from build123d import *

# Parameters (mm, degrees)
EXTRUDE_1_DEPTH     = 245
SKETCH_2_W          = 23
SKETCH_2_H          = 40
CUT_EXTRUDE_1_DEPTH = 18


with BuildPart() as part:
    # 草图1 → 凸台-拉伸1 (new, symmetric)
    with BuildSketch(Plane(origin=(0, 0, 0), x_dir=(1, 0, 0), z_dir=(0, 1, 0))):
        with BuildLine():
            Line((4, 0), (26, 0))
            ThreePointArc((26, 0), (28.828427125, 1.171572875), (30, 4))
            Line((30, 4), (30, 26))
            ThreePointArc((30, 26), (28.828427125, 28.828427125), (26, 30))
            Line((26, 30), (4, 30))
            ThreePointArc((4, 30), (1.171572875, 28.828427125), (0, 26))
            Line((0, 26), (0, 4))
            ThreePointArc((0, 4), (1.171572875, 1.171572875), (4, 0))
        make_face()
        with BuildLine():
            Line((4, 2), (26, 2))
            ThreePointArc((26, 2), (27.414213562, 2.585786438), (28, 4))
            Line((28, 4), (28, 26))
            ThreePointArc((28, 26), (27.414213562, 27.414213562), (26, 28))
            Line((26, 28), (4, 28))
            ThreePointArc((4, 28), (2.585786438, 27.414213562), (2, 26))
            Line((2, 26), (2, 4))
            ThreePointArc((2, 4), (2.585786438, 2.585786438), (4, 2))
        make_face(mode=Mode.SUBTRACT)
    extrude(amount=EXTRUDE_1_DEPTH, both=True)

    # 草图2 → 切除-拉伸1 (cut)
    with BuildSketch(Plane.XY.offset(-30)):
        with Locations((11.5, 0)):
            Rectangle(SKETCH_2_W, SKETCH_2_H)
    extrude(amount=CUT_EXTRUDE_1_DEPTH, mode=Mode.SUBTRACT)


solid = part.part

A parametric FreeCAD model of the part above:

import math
import FreeCAD as App
import Part
import Sketcher
from FreeCAD import Vector


def add_polygon(sketch, points):
    """Adds a closed chain of lines whose ends are joined by coincident constraints."""
    first, n = sketch.GeometryCount, len(points)
    for a, b in zip(points, points[1:] + points[:1]):
        sketch.addGeometry(Part.LineSegment(App.Vector(*a, 0), App.Vector(*b, 0)), False)
    for i in range(n):
        sketch.addConstraint(Sketcher.Constraint("Coincident", first + i, 2, first + (i + 1) % n, 1))

doc = App.newDocument("Part")
body = doc.addObject("PartDesign::Body", "Body")

# Sketch on XZ plane
sketch1 = body.newObject("Sketcher::SketchObject", "Sketch")
sketch1.AttachmentSupport = (doc.getObject("XZ_Plane"), [""])
sketch1.MapMode = "FlatFace"
sketch1.addGeometry([
    Part.LineSegment(Vector(4, 0, 0), Vector(26, 0, 0)),  # 0
    Part.ArcOfCircle(Part.Circle(Vector(26, -4, 0), Vector(0, 0, 1), 4), math.radians(0), math.radians(90)),  # 1
    Part.LineSegment(Vector(30, -4, 0), Vector(30, -26, 0)),  # 2
    Part.ArcOfCircle(Part.Circle(Vector(26, -26, 0), Vector(0, 0, 1), 4), math.radians(-90), math.radians(0)),  # 3
    Part.LineSegment(Vector(26, -30, 0), Vector(4, -30, 0)),  # 4
    Part.ArcOfCircle(Part.Circle(Vector(4, -26, 0), Vector(0, 0, 1), 4), math.radians(180), math.radians(270)),  # 5
    Part.LineSegment(Vector(0, -26, 0), Vector(0, -4, 0)),  # 6
    Part.ArcOfCircle(Part.Circle(Vector(4, -4, 0), Vector(0, 0, 1), 4), math.radians(90), math.radians(180)),  # 7
    Part.LineSegment(Vector(26, -2, 0), Vector(4, -2, 0)),  # 8
    Part.ArcOfCircle(Part.Circle(Vector(4, -4, 0), Vector(0, 0, 1), 2), math.radians(90), math.radians(180)),  # 9
    Part.LineSegment(Vector(2, -4, 0), Vector(2, -26, 0)),  # 10
    Part.ArcOfCircle(Part.Circle(Vector(4, -26, 0), Vector(0, 0, 1), 2), math.radians(-180), math.radians(-90)),  # 11
    Part.LineSegment(Vector(4, -28, 0), Vector(26, -28, 0)),  # 12
    Part.ArcOfCircle(Part.Circle(Vector(26, -26, 0), Vector(0, 0, 1), 2), math.radians(-90), math.radians(0)),  # 13
    Part.LineSegment(Vector(28, -26, 0), Vector(28, -4, 0)),  # 14
    Part.ArcOfCircle(Part.Circle(Vector(26, -4, 0), Vector(0, 0, 1), 2), math.radians(0), math.radians(90)),  # 15
], False)
sketch1.addConstraint([
    Sketcher.Constraint("Tangent", 0, 2, 1, 2),
    Sketcher.Constraint("Tangent", 1, 1, 2, 1),
    Sketcher.Constraint("Tangent", 2, 2, 3, 2),
    Sketcher.Constraint("Tangent", 3, 1, 4, 1),
    Sketcher.Constraint("Tangent", 4, 2, 5, 2),
    Sketcher.Constraint("Tangent", 5, 1, 6, 1),
    Sketcher.Constraint("Tangent", 6, 2, 7, 2),
    Sketcher.Constraint("Tangent", 7, 1, 0, 1),
    Sketcher.Constraint("Tangent", 8, 2, 9, 1),
    Sketcher.Constraint("Tangent", 9, 2, 10, 1),
    Sketcher.Constraint("Tangent", 10, 2, 11, 1),
    Sketcher.Constraint("Tangent", 11, 2, 12, 1),
    Sketcher.Constraint("Tangent", 12, 2, 13, 1),
    Sketcher.Constraint("Tangent", 13, 2, 14, 1),
    Sketcher.Constraint("Tangent", 14, 2, 15, 1),
    Sketcher.Constraint("Tangent", 15, 2, 8, 1),
    Sketcher.Constraint("Horizontal", 0),
    Sketcher.Constraint("Vertical", 2),
    Sketcher.Constraint("Horizontal", 4),
    Sketcher.Constraint("Vertical", 6),
    Sketcher.Constraint("Horizontal", 8),
    Sketcher.Constraint("Vertical", 10),
    Sketcher.Constraint("Horizontal", 12),
    Sketcher.Constraint("Vertical", 14),
    Sketcher.Constraint("Coincident", 9, 3, 7, 3),
    Sketcher.Constraint("Coincident", 11, 3, 5, 3),
    Sketcher.Constraint("Coincident", 13, 3, 3, 3),
    Sketcher.Constraint("Equal", 1, 3),
    Sketcher.Constraint("Equal", 3, 5),
    Sketcher.Constraint("Equal", 5, 7),
    Sketcher.Constraint("Equal", 13, 15),
    Sketcher.Constraint("PointOnObject", 0, 2, -1),
    Sketcher.Constraint("PointOnObject", 5, 1, -2),
    Sketcher.Constraint("Equal", 12, 2),
    Sketcher.Constraint("Radius", 1, 4.0),
    Sketcher.Constraint("Radius", 9, 2.0),
    Sketcher.Constraint("DistanceX", 0, 1, 0, 2, 22.0),
])
pad1 = body.newObject("PartDesign::Pad", "Pad")
pad1.Profile = sketch1
pad1.Length = 490
pad1.Midplane = True

# Sketch on XY plane
sketch2 = body.newObject("Sketcher::SketchObject", "Sketch001")
sketch2.AttachmentSupport = (doc.getObject("XY_Plane"), [""])
sketch2.MapMode = "FlatFace"
sketch2.AttachmentOffset = App.Placement(Vector(0, 0, -30), App.Rotation())
add_polygon(sketch2, [(0, 20), (0, -20), (23, -20), (23, 20)])  # lines 0-3
sketch2.addConstraint([
    Sketcher.Constraint("Vertical", 0),
    Sketcher.Constraint("Horizontal", 1),
    Sketcher.Constraint("Vertical", 2),
    Sketcher.Constraint("Horizontal", 3),
    Sketcher.Constraint("Symmetric", 0, 2, 3, 2, -1, 1),
    Sketcher.Constraint("DistanceX", 1, 1, 1, 2, 23.0),
    Sketcher.Constraint("DistanceY", 0, 2, 0, 1, 40.0),
])
pocket1 = body.newObject("PartDesign::Pocket", "Pocket")
pocket1.Profile = sketch2
pocket1.Length = 18
pocket1.Reversed = True

doc.recompute()
